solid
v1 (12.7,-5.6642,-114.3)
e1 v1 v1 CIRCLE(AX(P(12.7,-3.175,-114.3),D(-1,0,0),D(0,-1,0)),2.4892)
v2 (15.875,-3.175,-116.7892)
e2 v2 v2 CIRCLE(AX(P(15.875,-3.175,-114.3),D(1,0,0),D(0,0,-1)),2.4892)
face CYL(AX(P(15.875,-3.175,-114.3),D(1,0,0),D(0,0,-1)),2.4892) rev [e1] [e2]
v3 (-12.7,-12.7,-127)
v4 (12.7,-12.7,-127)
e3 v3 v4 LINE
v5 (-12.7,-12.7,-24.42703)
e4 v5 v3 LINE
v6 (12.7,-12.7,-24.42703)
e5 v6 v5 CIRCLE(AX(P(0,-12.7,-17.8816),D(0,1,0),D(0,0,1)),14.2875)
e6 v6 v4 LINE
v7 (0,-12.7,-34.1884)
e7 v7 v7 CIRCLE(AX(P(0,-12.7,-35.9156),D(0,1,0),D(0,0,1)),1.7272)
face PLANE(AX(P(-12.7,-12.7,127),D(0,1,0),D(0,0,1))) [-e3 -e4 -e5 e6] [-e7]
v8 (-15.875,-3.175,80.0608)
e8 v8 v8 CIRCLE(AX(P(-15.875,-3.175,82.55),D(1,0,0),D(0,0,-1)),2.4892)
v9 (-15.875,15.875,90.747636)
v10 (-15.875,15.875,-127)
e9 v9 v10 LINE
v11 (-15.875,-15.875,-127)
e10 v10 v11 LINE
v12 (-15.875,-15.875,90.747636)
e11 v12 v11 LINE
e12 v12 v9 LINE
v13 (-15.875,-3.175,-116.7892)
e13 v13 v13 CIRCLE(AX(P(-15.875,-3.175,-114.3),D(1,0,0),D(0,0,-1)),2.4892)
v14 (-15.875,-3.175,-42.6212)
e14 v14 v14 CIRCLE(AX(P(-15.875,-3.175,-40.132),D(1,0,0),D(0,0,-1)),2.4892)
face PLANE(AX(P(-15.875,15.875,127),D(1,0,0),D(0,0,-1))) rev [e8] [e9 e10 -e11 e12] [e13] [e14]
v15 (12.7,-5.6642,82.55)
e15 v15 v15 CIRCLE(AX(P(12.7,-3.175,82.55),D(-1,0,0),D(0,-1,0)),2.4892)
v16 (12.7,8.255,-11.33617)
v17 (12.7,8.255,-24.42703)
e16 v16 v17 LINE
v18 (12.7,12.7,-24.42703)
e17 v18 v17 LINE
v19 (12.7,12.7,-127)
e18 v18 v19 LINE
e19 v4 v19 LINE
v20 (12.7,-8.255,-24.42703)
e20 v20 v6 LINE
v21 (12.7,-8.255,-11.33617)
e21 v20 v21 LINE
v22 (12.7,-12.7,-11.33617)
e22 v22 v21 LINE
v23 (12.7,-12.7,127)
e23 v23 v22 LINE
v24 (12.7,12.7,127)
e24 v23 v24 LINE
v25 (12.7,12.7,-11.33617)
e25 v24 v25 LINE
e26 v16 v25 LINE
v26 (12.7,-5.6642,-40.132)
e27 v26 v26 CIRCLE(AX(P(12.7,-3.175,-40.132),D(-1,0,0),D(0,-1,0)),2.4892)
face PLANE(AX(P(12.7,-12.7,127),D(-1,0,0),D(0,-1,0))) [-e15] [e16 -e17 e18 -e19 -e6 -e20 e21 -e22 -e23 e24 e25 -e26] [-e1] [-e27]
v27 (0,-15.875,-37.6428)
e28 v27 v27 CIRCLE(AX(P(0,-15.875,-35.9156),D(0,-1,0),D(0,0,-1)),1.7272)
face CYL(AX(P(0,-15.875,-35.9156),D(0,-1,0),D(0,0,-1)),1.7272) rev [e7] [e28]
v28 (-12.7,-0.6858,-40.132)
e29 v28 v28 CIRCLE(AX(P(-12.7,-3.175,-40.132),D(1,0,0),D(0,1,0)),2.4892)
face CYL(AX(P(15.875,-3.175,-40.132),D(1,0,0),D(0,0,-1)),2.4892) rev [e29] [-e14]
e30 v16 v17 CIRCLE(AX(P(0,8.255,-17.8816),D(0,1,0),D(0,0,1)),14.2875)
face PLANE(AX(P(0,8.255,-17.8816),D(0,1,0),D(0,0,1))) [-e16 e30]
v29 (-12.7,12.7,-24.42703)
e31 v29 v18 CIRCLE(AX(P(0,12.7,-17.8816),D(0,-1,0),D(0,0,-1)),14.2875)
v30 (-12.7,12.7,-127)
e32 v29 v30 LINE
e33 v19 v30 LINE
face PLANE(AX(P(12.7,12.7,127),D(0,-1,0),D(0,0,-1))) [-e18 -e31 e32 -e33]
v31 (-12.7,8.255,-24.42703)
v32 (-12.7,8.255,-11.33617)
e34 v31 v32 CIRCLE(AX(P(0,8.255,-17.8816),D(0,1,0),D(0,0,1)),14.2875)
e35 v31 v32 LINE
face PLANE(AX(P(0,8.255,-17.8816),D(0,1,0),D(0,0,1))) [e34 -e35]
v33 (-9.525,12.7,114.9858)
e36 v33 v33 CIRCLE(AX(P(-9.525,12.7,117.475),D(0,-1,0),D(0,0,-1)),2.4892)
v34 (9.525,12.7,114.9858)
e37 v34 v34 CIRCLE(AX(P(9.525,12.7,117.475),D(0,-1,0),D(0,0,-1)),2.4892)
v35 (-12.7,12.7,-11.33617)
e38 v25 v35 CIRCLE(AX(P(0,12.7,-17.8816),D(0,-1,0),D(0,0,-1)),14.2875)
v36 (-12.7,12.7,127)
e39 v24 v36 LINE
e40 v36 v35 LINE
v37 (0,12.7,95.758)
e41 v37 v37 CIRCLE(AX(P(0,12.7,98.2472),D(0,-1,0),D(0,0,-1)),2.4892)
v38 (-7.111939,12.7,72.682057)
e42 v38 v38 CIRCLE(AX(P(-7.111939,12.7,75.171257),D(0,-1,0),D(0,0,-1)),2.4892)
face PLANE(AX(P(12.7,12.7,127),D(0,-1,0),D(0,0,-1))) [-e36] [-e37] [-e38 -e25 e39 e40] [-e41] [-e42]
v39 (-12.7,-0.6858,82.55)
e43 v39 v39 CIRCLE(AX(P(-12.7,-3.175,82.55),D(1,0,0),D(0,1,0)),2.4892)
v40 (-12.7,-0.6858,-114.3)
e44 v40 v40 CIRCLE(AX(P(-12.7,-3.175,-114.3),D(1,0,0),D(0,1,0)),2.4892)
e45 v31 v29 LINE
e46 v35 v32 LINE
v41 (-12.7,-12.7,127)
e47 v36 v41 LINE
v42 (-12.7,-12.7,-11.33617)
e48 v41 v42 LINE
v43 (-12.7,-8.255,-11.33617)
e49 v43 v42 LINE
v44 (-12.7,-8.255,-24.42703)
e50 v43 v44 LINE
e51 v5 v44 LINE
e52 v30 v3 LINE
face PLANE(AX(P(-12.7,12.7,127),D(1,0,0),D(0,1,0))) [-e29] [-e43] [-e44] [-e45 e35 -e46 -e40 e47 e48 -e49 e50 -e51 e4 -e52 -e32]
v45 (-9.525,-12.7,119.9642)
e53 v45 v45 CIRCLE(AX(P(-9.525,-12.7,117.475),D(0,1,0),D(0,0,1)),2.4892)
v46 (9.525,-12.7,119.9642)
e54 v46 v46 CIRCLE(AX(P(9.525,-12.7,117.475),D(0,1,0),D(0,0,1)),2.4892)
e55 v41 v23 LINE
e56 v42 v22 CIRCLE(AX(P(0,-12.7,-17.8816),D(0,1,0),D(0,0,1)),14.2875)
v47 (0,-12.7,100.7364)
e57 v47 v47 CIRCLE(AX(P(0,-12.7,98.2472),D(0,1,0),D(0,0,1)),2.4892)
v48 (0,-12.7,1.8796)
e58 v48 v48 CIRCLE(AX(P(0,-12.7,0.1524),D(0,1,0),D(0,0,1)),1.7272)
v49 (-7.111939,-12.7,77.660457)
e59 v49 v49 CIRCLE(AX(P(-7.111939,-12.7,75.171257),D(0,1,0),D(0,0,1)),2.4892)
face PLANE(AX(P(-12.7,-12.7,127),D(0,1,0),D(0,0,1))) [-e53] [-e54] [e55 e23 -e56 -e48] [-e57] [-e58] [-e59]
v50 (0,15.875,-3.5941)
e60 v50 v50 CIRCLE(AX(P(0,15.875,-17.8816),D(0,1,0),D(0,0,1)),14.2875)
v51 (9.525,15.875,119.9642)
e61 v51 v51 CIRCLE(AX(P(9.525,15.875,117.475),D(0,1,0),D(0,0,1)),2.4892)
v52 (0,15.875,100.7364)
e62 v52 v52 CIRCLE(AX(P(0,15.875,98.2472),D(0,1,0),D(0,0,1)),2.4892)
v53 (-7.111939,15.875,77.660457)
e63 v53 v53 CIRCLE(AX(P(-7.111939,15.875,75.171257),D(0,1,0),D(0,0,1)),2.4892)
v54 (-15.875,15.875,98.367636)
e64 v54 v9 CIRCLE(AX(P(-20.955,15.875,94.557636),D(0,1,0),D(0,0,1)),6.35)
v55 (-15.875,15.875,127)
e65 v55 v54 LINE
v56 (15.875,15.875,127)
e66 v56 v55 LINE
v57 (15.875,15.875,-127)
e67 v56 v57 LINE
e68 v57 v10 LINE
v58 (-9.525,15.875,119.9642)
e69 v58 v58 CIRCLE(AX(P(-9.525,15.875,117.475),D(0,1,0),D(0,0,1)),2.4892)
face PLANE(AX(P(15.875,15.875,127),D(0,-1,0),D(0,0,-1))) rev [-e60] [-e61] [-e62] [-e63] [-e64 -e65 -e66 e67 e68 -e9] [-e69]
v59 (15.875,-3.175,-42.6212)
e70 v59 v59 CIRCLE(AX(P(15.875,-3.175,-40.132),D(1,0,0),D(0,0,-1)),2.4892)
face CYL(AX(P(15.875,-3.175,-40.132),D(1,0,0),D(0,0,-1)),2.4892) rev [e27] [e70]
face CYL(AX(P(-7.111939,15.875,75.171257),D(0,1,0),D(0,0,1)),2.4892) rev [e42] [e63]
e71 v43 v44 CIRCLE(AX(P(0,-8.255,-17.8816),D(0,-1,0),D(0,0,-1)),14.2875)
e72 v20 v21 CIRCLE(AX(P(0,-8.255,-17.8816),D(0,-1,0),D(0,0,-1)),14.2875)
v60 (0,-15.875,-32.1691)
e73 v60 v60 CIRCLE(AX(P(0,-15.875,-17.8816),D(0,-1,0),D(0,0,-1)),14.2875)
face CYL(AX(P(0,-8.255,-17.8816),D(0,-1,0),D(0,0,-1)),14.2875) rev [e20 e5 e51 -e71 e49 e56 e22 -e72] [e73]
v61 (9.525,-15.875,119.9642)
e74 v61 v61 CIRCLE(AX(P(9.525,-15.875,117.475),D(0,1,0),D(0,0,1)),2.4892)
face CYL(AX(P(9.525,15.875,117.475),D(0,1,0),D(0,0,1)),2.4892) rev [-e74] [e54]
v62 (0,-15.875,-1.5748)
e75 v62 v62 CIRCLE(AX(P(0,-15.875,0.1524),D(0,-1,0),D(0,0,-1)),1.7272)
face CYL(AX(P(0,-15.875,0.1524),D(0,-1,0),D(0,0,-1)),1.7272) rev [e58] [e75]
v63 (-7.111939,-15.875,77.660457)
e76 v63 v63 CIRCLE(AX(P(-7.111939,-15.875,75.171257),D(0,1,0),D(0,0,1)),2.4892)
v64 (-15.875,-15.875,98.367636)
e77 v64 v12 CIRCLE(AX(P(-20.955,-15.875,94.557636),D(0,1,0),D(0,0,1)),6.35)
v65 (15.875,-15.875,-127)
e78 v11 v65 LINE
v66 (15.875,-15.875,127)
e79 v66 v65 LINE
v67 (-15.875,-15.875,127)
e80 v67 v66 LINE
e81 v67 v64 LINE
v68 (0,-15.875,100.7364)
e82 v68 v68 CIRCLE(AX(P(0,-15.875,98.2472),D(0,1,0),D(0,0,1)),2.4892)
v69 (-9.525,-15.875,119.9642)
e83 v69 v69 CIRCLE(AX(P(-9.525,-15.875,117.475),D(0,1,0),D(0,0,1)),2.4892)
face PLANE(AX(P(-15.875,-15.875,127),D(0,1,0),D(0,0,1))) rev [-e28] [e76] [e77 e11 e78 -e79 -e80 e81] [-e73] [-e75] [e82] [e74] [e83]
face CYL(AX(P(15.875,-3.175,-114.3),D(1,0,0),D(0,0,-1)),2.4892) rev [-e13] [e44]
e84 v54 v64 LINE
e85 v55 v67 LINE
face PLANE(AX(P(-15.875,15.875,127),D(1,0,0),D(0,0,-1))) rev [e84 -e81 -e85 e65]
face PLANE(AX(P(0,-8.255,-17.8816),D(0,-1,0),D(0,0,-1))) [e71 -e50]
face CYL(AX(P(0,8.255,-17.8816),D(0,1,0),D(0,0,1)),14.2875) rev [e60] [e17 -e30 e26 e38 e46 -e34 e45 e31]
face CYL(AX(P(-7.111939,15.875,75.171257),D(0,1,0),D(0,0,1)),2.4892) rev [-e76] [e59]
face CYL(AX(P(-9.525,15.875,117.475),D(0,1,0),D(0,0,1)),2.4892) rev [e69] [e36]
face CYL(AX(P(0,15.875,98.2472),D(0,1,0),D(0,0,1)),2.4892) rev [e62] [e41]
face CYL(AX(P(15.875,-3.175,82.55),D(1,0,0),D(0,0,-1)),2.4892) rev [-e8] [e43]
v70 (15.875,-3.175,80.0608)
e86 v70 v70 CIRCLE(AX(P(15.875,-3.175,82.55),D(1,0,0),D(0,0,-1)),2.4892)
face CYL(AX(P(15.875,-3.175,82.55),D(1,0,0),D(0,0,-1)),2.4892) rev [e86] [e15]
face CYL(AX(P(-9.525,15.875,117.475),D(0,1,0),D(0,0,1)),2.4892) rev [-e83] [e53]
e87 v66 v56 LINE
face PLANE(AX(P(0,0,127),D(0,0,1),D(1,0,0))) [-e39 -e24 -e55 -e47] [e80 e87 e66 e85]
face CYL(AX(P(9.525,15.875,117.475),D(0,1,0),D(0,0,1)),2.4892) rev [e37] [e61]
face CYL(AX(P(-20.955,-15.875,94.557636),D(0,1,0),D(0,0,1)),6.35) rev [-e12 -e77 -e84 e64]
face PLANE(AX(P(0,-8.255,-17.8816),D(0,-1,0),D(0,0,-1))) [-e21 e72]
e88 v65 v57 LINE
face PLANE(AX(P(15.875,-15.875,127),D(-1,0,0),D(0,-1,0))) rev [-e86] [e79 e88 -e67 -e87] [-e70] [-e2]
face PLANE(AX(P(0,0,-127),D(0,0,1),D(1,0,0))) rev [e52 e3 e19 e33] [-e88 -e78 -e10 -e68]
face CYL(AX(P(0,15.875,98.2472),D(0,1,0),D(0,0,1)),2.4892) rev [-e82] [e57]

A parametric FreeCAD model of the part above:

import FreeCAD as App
import Part
import Sketcher
from FreeCAD import Vector
Q = App.Units.Quantity

doc = App.newDocument("Part")
body = doc.addObject("PartDesign::Body", "Body")

# Sketch on XY plane
sketch1 = doc.addObject("Sketcher::SketchObject", "Sketch")
body.addObject(sketch1)
sketch1.AttachmentSupport = (doc.XY_Plane, [""])
sketch1.MapMode = "FlatFace"
sketch1.addGeometry([
    Part.LineSegment(Vector(-16, 16, 0), Vector(-16, -16, 0)),  # 0
    Part.LineSegment(Vector(-16, -16, 0), Vector(16, -16, 0)),  # 1
    Part.LineSegment(Vector(16, -16, 0), Vector(16, 16, 0)),  # 2
    Part.LineSegment(Vector(16, 16, 0), Vector(-16, 16, 0)),  # 3
    Part.LineSegment(Vector(13, -13, 0), Vector(-13, -13, 0)),  # 4
    Part.LineSegment(Vector(-13, -13, 0), Vector(-13, 13, 0)),  # 5
    Part.LineSegment(Vector(-13, 13, 0), Vector(13, 13, 0)),  # 6
    Part.LineSegment(Vector(13, 13, 0), Vector(13, -13, 0)),  # 7
], False)
sketch1.addConstraint([
    Sketcher.Constraint("Coincident", 0, 2, 1, 1),
    Sketcher.Constraint("Coincident", 1, 2, 2, 1),
    Sketcher.Constraint("Coincident", 2, 2, 3, 1),
    Sketcher.Constraint("Coincident", 3, 2, 0, 1),
    Sketcher.Constraint("Coincident", 4, 2, 5, 1),
    Sketcher.Constraint("Coincident", 5, 2, 6, 1),
    Sketcher.Constraint("Coincident", 6, 2, 7, 1),
    Sketcher.Constraint("Coincident", 7, 2, 4, 1),
    Sketcher.Constraint("Vertical", 0),
    Sketcher.Constraint("Horizontal", 1),
    Sketcher.Constraint("Vertical", 2),
    Sketcher.Constraint("Horizontal", 3),
    Sketcher.Constraint("Horizontal", 4),
    Sketcher.Constraint("Vertical", 5),
    Sketcher.Constraint("Horizontal", 6),
    Sketcher.Constraint("Vertical", 7),
    Sketcher.Constraint("Symmetric", 0, 2, 2, 2, -1, 1),
    Sketcher.Constraint("Symmetric", 4, 2, 6, 2, -1, 1),
    Sketcher.Constraint("Equal", 3, 0),
    Sketcher.Constraint("Equal", 6, 5),
    Sketcher.Constraint("DistanceX", 4, 2, 4, 1, Q("1 in")),
    Sketcher.Constraint("DistanceX", 1, 1, 1, 2, Q("1.25 in")),
])
pad1 = doc.addObject("PartDesign::Pad", "Pad")
body.addObject(pad1)
pad1.Profile = sketch1
pad1.Type = "TwoLengths"
pad1.Length = Q("5 in")
pad1.Length2 = Q("5 in")

# Sketch on XZ plane
sketch2 = doc.addObject("Sketcher::SketchObject", "Sketch001")
body.addObject(sketch2)
sketch2.AttachmentSupport = (doc.XZ_Plane, [""])
sketch2.MapMode = "FlatFace"
sketch2.AttachmentOffset = App.Placement(Vector(0, 0, -0.625 * 25.4), App.Rotation())
sketch2.addGeometry([
    Part.Circle(Vector(-9.5, 117.5, 0), Vector(0, 0, 1), 2.5),
    Part.Circle(Vector(9.5, 117.5, 0), Vector(0, 0, 1), 2.5),
    Part.Circle(Vector(0, 98.2, 0), Vector(0, 0, 1), 2.5),
    Part.Circle(Vector(-7.1, 75.2, 0), Vector(0, 0, 1), 2.5),
], False)
sketch2.addConstraint([
    Sketcher.Constraint("Equal", 0, 1),
    Sketcher.Constraint("Equal", 1, 2),
    Sketcher.Constraint("Equal", 2, 3),
    Sketcher.Constraint("Symmetric", 0, 3, 1, 3, -2),
    Sketcher.Constraint("PointOnObject", 2, 3, -2),
    Sketcher.Constraint("Diameter", 0, Q("0.196 in")),
    Sketcher.Constraint("DistanceX", 0, 3, 1, 3, Q("0.75 in")),
    Sketcher.Constraint("DistanceY", -1, 1, 0, 3, Q("4.625 in")),
    Sketcher.Constraint("DistanceY", -1, 1, 2, 3, Q("3.868 in")),
    Sketcher.Constraint("DistanceX", 3, 3, -1, 1, 7.111939),
    Sketcher.Constraint("DistanceY", -1, 1, 3, 3, 75.171257),
])
doc.recompute()
hole = doc.addObject("PartDesign::Hole", "Hole")
body.addObject(hole)
hole.Profile = sketch2
hole.ThreadType = "None"
hole.Diameter = Q("0.196 in")
hole.DepthType = "ThroughAll"
hole.Reversed = True

# Sketch on XZ plane
sketch3 = doc.addObject("Sketcher::SketchObject", "Sketch002")
body.addObject(sketch3)
sketch3.AttachmentSupport = (doc.XZ_Plane, [""])
sketch3.MapMode = "FlatFace"
sketch3.AttachmentOffset = App.Placement(Vector(0, 0, -0.625 * 25.4), App.Rotation())
sketch3.addGeometry(Part.Circle(Vector(0, -18, 0), Vector(0, 0, 1), 14), False)
sketch3.addConstraint([
    Sketcher.Constraint("PointOnObject", 0, 3, -2),
    Sketcher.Constraint("Diameter", 0, Q("1.125 in")),
    Sketcher.Constraint("DistanceY", 0, 3, -1, 1, Q("0.704 in")),
])
pocket1 = doc.addObject("PartDesign::Pocket", "Pocket")
body.addObject(pocket1)
pocket1.Profile = sketch3
pocket1.Length = Q("0.3 in")
pocket1.Reversed = True

# Sketch on XZ plane
sketch4 = doc.addObject("Sketcher::SketchObject", "Sketch003")
body.addObject(sketch4)
sketch4.AttachmentSupport = (doc.XZ_Plane, [""])
sketch4.MapMode = "FlatFace"
sketch4.AttachmentOffset = App.Placement(Vector(0, 0, 0.325 * 25.4), App.Rotation())
sketch4.addGeometry(Part.Circle(Vector(0, -18, 0), Vector(0, 0, 1), 14), False)
sketch4.addConstraint([
    Sketcher.Constraint("PointOnObject", 0, 3, -2),
    Sketcher.Constraint("Diameter", 0, Q("1.125 in")),
    Sketcher.Constraint("DistanceY", 0, 3, -1, 1, Q("0.704 in")),
])
pocket2 = doc.addObject("PartDesign::Pocket", "Pocket001")
body.addObject(pocket2)
pocket2.Profile = sketch4
pocket2.Length = Q("0.3 in")
pocket2.Reversed = True

# Sketch on YZ plane
sketch5 = doc.addObject("Sketcher::SketchObject", "Sketch004")
body.addObject(sketch5)
sketch5.AttachmentSupport = (doc.YZ_Plane, [""])
sketch5.MapMode = "FlatFace"
sketch5.AttachmentOffset = App.Placement(Vector(0, 0, 0.625 * 25.4), App.Rotation())
sketch5.addGeometry([
    Part.Circle(Vector(-3.2, 82.5, 0), Vector(0, 0, 1), 2.5),
    Part.Circle(Vector(-3.2, -114.3, 0), Vector(0, 0, 1), 2.5),
    Part.Circle(Vector(-3.2, -40.1, 0), Vector(0, 0, 1), 2.5),
], False)
sketch5.addConstraint([
    Sketcher.Constraint("Equal", 0, 1),
    Sketcher.Constraint("Equal", 1, 2),
    Sketcher.Constraint("Vertical", 0, 3, 1, 3),
    Sketcher.Constraint("Vertical", 1, 3, 2, 3),
    Sketcher.Constraint("Diameter", 0, Q("0.196 in")),
    Sketcher.Constraint("DistanceY", 1, 3, -1, 1, Q("4.5 in")),
    Sketcher.Constraint("DistanceY", -1, 1, 0, 3, Q("3.25 in")),
    Sketcher.Constraint("DistanceY", 2, 3, -1, 1, Q("1.58 in")),
    Sketcher.Constraint("DistanceX", 0, 3, -1, 1, Q("0.125 in")),
])
doc.recompute()
hole2 = doc.addObject("PartDesign::Hole", "Hole001")
body.addObject(hole2)
hole2.Profile = sketch5
hole2.ThreadType = "None"
hole2.Diameter = Q("0.196 in")
hole2.DepthType = "ThroughAll"

# Sketch on XZ plane
sketch6 = doc.addObject("Sketcher::SketchObject", "Sketch005")
body.addObject(sketch6)
sketch6.AttachmentSupport = (doc.XZ_Plane, [""])
sketch6.MapMode = "FlatFace"
sketch6.AttachmentOffset = App.Placement(Vector(0, 0, -0.625 * 25.4), App.Rotation())
sketch6.addGeometry(Part.Circle(Vector(-21, 95, 0), Vector(0, 0, 1), 6), False)
sketch6.addConstraint([
    Sketcher.Constraint("Diameter", 0, Q("0.5 in")),
    Sketcher.Constraint("DistanceX", 0, 3, -1, 1, Q("0.825 in")),
    Sketcher.Constraint("DistanceY", -1, 1, 0, 3, 94.557636),
])
pocket3 = doc.addObject("PartDesign::Pocket", "Pocket002")
body.addObject(pocket3)
pocket3.Profile = sketch6
pocket3.Type = "ThroughAll"
pocket3.Reversed = True

# Sketch on XZ plane
sketch7 = doc.addObject("Sketcher::SketchObject", "Sketch006")
body.addObject(sketch7)
sketch7.AttachmentSupport = (doc.XZ_Plane, [""])
sketch7.MapMode = "FlatFace"
sketch7.AttachmentOffset = App.Placement(Vector(0, 0, 0.625 * 25.4), App.Rotation())
sketch7.addGeometry([
    Part.Circle(Vector(0, -35.9, 0), Vector(0, 0, 1), 1.7),
    Part.Circle(Vector(0, 0.2, 0), Vector(0, 0, 1), 1.7),
], False)
sketch7.addConstraint([
    Sketcher.Constraint("Equal", 0, 1),
    Sketcher.Constraint("PointOnObject", 0, 3, -2),
    Sketcher.Constraint("PointOnObject", 1, 3, -2),
    Sketcher.Constraint("Diameter", 0, Q("0.136 in")),
    Sketcher.Constraint("DistanceY", 0, 3, 1, 3, Q("1.42 in")),
    Sketcher.Constraint("DistanceY", 0, 3, -1, 1, Q("1.414 in")),
])
doc.recompute()
hole3 = doc.addObject("PartDesign::Hole", "Hole002")
body.addObject(hole3)
hole3.Profile = sketch7
hole3.ThreadType = "None"
hole3.Diameter = Q("0.136 in")
hole3.DepthType = "Dimension"
hole3.Depth = Q("0.2 in")
hole3.DrillPoint = "Angled"
hole3.DrillPointAngle = 118

doc.recompute()
